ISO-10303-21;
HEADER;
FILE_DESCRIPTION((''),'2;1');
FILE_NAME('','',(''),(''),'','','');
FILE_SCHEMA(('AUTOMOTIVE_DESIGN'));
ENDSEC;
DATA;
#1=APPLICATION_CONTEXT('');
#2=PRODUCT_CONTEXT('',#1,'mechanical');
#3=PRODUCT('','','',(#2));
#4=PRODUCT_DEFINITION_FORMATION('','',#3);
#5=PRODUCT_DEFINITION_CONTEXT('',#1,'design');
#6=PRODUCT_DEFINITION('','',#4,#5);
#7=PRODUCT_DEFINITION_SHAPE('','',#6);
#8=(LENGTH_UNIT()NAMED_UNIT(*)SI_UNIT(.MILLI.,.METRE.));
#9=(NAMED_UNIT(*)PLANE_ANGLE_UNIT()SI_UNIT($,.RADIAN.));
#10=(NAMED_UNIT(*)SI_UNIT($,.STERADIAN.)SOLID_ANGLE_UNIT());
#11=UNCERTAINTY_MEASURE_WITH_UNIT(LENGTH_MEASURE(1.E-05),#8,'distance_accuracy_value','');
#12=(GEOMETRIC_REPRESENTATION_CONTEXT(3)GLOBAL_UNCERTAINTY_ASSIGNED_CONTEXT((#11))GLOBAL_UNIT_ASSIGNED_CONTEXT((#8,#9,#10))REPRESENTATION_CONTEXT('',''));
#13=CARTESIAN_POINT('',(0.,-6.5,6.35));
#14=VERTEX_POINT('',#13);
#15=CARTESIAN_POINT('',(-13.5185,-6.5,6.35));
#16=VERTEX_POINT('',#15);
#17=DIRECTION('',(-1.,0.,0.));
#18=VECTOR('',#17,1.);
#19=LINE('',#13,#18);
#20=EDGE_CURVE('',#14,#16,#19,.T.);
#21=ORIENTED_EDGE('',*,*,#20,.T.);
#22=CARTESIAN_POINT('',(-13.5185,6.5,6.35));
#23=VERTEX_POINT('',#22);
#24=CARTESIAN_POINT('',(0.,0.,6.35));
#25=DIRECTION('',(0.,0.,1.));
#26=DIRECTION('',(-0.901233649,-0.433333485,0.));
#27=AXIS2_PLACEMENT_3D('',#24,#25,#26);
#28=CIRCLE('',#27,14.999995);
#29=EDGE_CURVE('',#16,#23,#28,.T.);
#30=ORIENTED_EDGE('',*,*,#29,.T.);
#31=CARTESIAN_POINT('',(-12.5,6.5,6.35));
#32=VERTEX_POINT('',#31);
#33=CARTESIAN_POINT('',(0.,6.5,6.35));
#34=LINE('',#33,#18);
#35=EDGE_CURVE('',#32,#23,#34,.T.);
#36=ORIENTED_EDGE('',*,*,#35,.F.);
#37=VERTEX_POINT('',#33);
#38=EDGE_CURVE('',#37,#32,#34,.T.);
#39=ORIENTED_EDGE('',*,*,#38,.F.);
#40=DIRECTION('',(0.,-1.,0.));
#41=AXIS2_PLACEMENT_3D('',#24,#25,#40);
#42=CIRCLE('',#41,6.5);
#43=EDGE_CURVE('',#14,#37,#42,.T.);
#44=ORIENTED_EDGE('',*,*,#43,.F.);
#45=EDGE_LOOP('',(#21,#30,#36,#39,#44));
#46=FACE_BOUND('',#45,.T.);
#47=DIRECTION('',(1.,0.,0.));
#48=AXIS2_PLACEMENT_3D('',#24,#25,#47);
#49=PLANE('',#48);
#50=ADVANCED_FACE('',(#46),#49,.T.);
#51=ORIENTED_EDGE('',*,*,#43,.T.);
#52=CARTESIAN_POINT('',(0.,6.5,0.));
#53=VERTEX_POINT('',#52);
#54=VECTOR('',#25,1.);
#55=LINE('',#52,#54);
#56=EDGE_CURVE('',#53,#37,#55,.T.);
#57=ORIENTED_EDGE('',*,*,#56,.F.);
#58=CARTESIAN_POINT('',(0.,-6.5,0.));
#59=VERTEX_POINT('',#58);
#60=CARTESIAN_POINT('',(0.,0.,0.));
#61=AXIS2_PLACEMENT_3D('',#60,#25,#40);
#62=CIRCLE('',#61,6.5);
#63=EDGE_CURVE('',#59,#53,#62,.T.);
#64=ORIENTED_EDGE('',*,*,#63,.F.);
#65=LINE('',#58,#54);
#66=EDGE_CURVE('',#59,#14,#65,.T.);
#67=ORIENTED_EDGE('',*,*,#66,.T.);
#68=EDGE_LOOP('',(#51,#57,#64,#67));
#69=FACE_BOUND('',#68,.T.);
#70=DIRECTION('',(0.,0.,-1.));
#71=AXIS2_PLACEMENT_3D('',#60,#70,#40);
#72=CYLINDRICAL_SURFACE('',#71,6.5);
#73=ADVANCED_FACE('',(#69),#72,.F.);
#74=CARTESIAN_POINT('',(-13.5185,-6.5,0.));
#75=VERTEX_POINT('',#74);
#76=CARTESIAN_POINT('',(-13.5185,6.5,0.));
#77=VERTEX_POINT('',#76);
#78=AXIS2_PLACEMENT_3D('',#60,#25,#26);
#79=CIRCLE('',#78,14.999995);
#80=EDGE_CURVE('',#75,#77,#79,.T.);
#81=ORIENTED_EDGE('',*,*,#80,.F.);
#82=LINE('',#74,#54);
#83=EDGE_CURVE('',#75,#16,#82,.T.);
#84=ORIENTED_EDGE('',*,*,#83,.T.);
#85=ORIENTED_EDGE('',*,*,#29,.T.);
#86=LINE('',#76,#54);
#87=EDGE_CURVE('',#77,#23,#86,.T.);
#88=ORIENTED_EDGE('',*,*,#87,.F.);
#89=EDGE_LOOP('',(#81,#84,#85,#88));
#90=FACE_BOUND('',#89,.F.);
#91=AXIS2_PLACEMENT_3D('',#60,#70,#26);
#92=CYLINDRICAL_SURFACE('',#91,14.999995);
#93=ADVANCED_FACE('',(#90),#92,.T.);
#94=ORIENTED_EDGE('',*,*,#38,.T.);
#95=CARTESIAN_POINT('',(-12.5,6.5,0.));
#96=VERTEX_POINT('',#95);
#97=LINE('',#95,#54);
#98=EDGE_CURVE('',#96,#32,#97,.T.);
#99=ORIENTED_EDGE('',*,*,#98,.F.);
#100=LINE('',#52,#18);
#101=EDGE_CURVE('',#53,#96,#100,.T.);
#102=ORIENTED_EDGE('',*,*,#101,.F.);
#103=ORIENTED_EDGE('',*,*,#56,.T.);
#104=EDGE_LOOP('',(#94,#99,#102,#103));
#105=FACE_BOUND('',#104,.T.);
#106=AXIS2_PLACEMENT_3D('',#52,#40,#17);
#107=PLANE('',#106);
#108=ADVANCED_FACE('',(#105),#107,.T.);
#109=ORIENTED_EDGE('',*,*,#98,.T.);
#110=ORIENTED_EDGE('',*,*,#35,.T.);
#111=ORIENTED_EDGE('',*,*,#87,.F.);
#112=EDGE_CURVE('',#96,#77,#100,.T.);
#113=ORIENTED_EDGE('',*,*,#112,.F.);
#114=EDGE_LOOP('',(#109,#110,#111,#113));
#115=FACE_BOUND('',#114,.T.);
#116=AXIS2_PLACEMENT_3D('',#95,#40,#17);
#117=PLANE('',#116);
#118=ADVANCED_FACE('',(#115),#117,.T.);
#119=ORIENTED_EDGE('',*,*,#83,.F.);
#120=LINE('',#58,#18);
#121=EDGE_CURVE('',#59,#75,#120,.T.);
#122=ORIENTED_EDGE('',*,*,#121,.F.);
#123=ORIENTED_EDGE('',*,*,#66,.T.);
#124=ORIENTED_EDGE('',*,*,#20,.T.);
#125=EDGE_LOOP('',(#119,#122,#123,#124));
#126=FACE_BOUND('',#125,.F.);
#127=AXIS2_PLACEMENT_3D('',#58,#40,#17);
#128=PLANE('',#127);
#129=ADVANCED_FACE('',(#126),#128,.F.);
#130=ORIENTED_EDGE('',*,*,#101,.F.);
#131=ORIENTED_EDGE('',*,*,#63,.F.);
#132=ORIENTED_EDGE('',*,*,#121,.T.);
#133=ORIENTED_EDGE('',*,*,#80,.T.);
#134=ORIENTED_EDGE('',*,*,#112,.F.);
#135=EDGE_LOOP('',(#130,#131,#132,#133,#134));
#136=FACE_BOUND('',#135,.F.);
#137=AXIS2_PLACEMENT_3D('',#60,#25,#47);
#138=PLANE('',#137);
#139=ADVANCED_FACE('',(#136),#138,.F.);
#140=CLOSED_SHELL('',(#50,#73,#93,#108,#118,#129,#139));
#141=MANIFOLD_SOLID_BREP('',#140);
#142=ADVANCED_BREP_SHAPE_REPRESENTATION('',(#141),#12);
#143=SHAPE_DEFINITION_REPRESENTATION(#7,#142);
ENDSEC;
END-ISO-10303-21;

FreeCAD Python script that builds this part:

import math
import FreeCAD as App
import Part
import Sketcher
from FreeCAD import Vector
Q = App.Units.Quantity

doc = App.newDocument("Part")
body = doc.addObject("PartDesign::Body", "Body")

sketch1 = body.newObject("Sketcher::SketchObject", "Sketch")
sketch1.AttachmentSupport = (doc.getObject("XY_Plane"), [""])
sketch1.MapMode = "FlatFace"
sketch1.addGeometry([
    Part.LineSegment(Vector(0, -6, 0), Vector(-14, -6, 0)),
    Part.ArcOfCircle(Part.Circle(Vector(0, 0, 0), Vector(0, 0, 1), 15), math.radians(-154), math.radians(154)),
    Part.LineSegment(Vector(-14, 6, 0), Vector(0, 6, 0)),
    Part.ArcOfCircle(Part.Circle(Vector(0, 0, 0), Vector(0, 0, 1), 6), math.radians(-90), math.radians(90)),
], False)
sketch1.addConstraint([
    Sketcher.Constraint("Coincident", 0, 2, 1, 1),
    Sketcher.Constraint("Coincident", 1, 2, 2, 1),
    Sketcher.Constraint("Tangent", 2, 2, 3, 2),
    Sketcher.Constraint("Tangent", 3, 1, 0, 1),
    Sketcher.Constraint("Horizontal", 0),
    Sketcher.Constraint("Horizontal", 2),
    Sketcher.Constraint("Coincident", 1, 3, -1, 1),
    Sketcher.Constraint("Coincident", 3, 3, -1, 1),
    Sketcher.Constraint("Radius", 3, Q("0.2559 in")),
    Sketcher.Constraint("Radius", 1, 15.0),
])
pad1 = body.newObject("PartDesign::Pad", "Pad")
pad1.Profile = sketch1
pad1.Length = Q("0.25 in")

doc.recompute()
